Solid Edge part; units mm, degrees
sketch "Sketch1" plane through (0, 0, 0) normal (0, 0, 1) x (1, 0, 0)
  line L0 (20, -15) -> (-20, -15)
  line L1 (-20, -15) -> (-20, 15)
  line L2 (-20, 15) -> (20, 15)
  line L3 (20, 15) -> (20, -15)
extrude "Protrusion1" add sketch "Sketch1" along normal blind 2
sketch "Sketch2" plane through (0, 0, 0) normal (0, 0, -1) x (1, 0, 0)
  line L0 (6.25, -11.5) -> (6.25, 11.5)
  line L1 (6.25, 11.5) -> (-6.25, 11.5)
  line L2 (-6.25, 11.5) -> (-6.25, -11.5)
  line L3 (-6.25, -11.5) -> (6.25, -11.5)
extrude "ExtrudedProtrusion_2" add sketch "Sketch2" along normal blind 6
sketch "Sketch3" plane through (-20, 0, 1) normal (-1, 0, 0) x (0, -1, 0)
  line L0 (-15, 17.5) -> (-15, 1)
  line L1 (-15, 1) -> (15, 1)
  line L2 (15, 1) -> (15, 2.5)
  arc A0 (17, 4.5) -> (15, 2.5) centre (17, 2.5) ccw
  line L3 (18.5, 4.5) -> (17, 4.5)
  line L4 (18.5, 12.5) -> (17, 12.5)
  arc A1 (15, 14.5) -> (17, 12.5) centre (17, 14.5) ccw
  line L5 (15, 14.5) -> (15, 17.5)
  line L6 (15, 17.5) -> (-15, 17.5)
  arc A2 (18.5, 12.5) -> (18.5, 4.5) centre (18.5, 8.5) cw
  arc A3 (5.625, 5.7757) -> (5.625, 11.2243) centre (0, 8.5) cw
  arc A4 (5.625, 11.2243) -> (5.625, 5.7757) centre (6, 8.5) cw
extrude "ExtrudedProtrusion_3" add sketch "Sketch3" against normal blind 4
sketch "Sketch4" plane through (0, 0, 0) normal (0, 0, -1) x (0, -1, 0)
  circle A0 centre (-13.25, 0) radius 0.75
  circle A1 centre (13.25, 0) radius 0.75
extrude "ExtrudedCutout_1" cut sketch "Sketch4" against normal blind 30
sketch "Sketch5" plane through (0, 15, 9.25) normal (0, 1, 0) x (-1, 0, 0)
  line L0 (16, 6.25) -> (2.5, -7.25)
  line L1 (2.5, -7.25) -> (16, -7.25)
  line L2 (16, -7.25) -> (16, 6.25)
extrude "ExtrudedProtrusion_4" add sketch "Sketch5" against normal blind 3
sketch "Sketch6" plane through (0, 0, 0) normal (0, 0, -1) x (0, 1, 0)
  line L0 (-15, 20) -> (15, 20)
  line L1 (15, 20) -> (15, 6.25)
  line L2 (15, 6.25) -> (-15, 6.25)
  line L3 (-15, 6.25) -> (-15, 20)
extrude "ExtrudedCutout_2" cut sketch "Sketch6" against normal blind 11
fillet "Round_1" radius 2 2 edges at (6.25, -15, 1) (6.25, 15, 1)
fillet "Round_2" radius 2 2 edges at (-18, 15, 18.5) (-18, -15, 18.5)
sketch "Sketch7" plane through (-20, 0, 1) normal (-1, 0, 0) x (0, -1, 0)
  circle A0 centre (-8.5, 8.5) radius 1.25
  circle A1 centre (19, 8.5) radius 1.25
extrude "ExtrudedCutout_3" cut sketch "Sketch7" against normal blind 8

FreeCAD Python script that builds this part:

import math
import FreeCAD as App
import Part
import Sketcher


def edges_at(feature, points):
    """Names of the edges that pass closest to the given points."""
    edges = feature.Shape.Edges
    near = lambda p: min(range(len(edges)), key=lambda i: edges[i].distToShape(Part.Vertex(*p))[0])
    return sorted({f"Edge{near(p) + 1}" for p in points})

doc = App.newDocument("Part")
body = doc.addObject("PartDesign::Body", "Body")

# Sketch on XY plane
sketch1 = body.newObject("Sketcher::SketchObject", "Sketch")
sketch1.AttachmentSupport = (doc.getObject("XY_Plane"), [""])
sketch1.MapMode = "FlatFace"
sketch1.addGeometry([
    Part.LineSegment(App.Vector(-20, -15, 0), App.Vector(20, -15, 0)),
    Part.LineSegment(App.Vector(20, -15, 0), App.Vector(20, 15, 0)),
    Part.LineSegment(App.Vector(20, 15, 0), App.Vector(-20, 15, 0)),
    Part.LineSegment(App.Vector(-20, 15, 0), App.Vector(-20, -15, 0)),
], False)
sketch1.addConstraint([
    Sketcher.Constraint("Coincident", 0, 2, 1, 1),
    Sketcher.Constraint("Coincident", 1, 2, 2, 1),
    Sketcher.Constraint("Coincident", 2, 2, 3, 1),
    Sketcher.Constraint("Coincident", 3, 2, 0, 1),
    Sketcher.Constraint("Horizontal", 0),
    Sketcher.Constraint("Vertical", 1),
    Sketcher.Constraint("Horizontal", 2),
    Sketcher.Constraint("Vertical", 3),
    Sketcher.Constraint("Symmetric", 0, 2, 2, 2, -1, 1),
    Sketcher.Constraint("DistanceX", 0, 1, 0, 2, 40.0),
    Sketcher.Constraint("DistanceY", 1, 1, 1, 2, 30.0),
])
pad1 = body.newObject("PartDesign::Pad", "Pad")
pad1.Profile = sketch1
pad1.Length = 2

# Sketch on XY plane
sketch2 = body.newObject("Sketcher::SketchObject", "Sketch001")
sketch2.AttachmentSupport = (doc.getObject("XY_Plane"), [""])
sketch2.MapMode = "FlatFace"
sketch2.addGeometry([
    Part.LineSegment(App.Vector(-6, 12, 0), App.Vector(6, 12, 0)),
    Part.LineSegment(App.Vector(6, 12, 0), App.Vector(6, -12, 0)),
    Part.LineSegment(App.Vector(6, -12, 0), App.Vector(-6, -12, 0)),
    Part.LineSegment(App.Vector(-6, -12, 0), App.Vector(-6, 12, 0)),
], False)
sketch2.addConstraint([
    Sketcher.Constraint("Coincident", 0, 2, 1, 1),
    Sketcher.Constraint("Coincident", 1, 2, 2, 1),
    Sketcher.Constraint("Coincident", 2, 2, 3, 1),
    Sketcher.Constraint("Coincident", 3, 2, 0, 1),
    Sketcher.Constraint("Horizontal", 0),
    Sketcher.Constraint("Vertical", 1),
    Sketcher.Constraint("Horizontal", 2),
    Sketcher.Constraint("Vertical", 3),
    Sketcher.Constraint("Symmetric", 0, 2, 2, 2, -1, 1),
    Sketcher.Constraint("DistanceY", 1, 2, 1, 1, 23.0),
    Sketcher.Constraint("DistanceX", 0, 1, 0, 2, 12.5),
])
pad2 = body.newObject("PartDesign::Pad", "Pad001")
pad2.Profile = sketch2
pad2.Length = 6
pad2.Reversed = True

# Sketch on YZ plane
sketch3 = body.newObject("Sketcher::SketchObject", "Sketch002")
sketch3.AttachmentSupport = (doc.getObject("YZ_Plane"), [""])
sketch3.MapMode = "FlatFace"
sketch3.AttachmentOffset = App.Placement(App.Vector(0, 0, -20), App.Rotation())
sketch3.addGeometry([
    Part.LineSegment(App.Vector(-15, 18.5, 0), App.Vector(15, 18.5, 0)),  # 0
    Part.LineSegment(App.Vector(15, 18.5, 0), App.Vector(15, 2, 0)),  # 1
    Part.LineSegment(App.Vector(15, 2, 0), App.Vector(-15, 2, 0)),  # 2
    Part.LineSegment(App.Vector(-15, 2, 0), App.Vector(-15, 3.5, 0)),  # 3
    Part.ArcOfCircle(Part.Circle(App.Vector(-17, 3.5, 0), App.Vector(0, 0, 1), 2), math.radians(0), math.radians(90)),  # 4
    Part.LineSegment(App.Vector(-17, 5.5, 0), App.Vector(-18.5, 5.5, 0)),  # 5
    Part.ArcOfCircle(Part.Circle(App.Vector(-18.5, 9.5, 0), App.Vector(0, 0, 1), 4), math.radians(90), math.radians(270)),  # 6
    Part.LineSegment(App.Vector(-18.5, 13.5, 0), App.Vector(-17, 13.5, 0)),  # 7
    Part.ArcOfCircle(Part.Circle(App.Vector(-17, 15.5, 0), App.Vector(0, 0, 1), 2), math.radians(-90), math.radians(0)),  # 8
    Part.LineSegment(App.Vector(-15, 15.5, 0), App.Vector(-15, 18.5, 0)),  # 9
    Part.ArcOfCircle(Part.Circle(App.Vector(-6, 9.5, 0), App.Vector(0, 0, 1), 2.7), math.radians(82), math.radians(278)),  # 10
    Part.ArcOfCircle(Part.Circle(App.Vector(0, 9.5, 0), App.Vector(0, 0, 1), 6.2), math.radians(-154), math.radians(154)),  # 11
], False)
sketch3.addConstraint([
    Sketcher.Constraint("Coincident", 0, 2, 1, 1),
    Sketcher.Constraint("Coincident", 1, 2, 2, 1),
    Sketcher.Constraint("Coincident", 2, 2, 3, 1),
    Sketcher.Constraint("Tangent", 3, 2, 4, 1),
    Sketcher.Constraint("Tangent", 4, 2, 5, 1),
    Sketcher.Constraint("Tangent", 5, 2, 6, 2),
    Sketcher.Constraint("Tangent", 6, 1, 7, 1),
    Sketcher.Constraint("Tangent", 7, 2, 8, 1),
    Sketcher.Constraint("Tangent", 8, 2, 9, 1),
    Sketcher.Constraint("Coincident", 9, 2, 0, 1),
    Sketcher.Constraint("Coincident", 10, 1, 11, 2),
    Sketcher.Constraint("Coincident", 11, 1, 10, 2),
    Sketcher.Constraint("Horizontal", 0),
    Sketcher.Constraint("Vertical", 1),
    Sketcher.Constraint("Horizontal", 2),
    Sketcher.Constraint("Vertical", 3),
    Sketcher.Constraint("Horizontal", 5),
    Sketcher.Constraint("Horizontal", 7),
    Sketcher.Constraint("Vertical", 9),
    Sketcher.Constraint("Equal", 4, 8),
    Sketcher.Constraint("PointOnObject", 11, 3, -2),
    Sketcher.Constraint("Horizontal", 6, 3, 10, 3),
    Sketcher.Constraint("Horizontal", 10, 3, 11, 3),
    Sketcher.Constraint("Vertical", 4, 3, 8, 3),
    Sketcher.Constraint("Equal", 7, 3),
    Sketcher.Constraint("Radius", 4, 2.0),
    Sketcher.Constraint("Radius", 6, 4.0),
    Sketcher.Constraint("DistanceX", 0, 1, 0, 2, 30.0),
    Sketcher.Constraint("DistanceY", 9, 1, 9, 2, 3.0),
    Sketcher.Constraint("Radius", 10, 2.75),
    Sketcher.Constraint("Radius", 11, 6.25),
    Sketcher.Constraint("DistanceX", 5, 2, 5, 1, 1.5),
    Sketcher.Constraint("DistanceX", 4, 3, -1, 1, 17.0),
    Sketcher.Constraint("DistanceX", 10, 3, -1, 1, 6.0),
    Sketcher.Constraint("DistanceY", -1, 1, 1, 2, 2.0),
])
pad3 = body.newObject("PartDesign::Pad", "Pad002")
pad3.Profile = sketch3
pad3.Length = 4

# Sketch on XY plane
sketch4 = body.newObject("Sketcher::SketchObject", "Sketch003")
sketch4.AttachmentSupport = (doc.getObject("XY_Plane"), [""])
sketch4.MapMode = "FlatFace"
sketch4.addGeometry([
    Part.Circle(App.Vector(0, 13.2, 0), App.Vector(0, 0, 1), 0.8),
    Part.Circle(App.Vector(0, -13.2, 0), App.Vector(0, 0, 1), 0.8),
], False)
sketch4.addConstraint([
    Sketcher.Constraint("Equal", 0, 1),
    Sketcher.Constraint("Symmetric", 0, 3, 1, 3, -1, 1),
    Sketcher.Constraint("PointOnObject", 0, 3, -2),
    Sketcher.Constraint("Diameter", 0, 1.5),
    Sketcher.Constraint("DistanceY", 1, 3, 0, 3, 26.5),
])
pocket1 = body.newObject("PartDesign::Pocket", "Pocket")
pocket1.Profile = sketch4
pocket1.Length = 30
pocket1.Reversed = True

# Sketch on XZ plane
sketch5 = body.newObject("Sketcher::SketchObject", "Sketch004")
sketch5.AttachmentSupport = (doc.getObject("XZ_Plane"), [""])
sketch5.MapMode = "FlatFace"
sketch5.AttachmentOffset = App.Placement(App.Vector(0, 0, -15), App.Rotation())
sketch5.addGeometry([
    Part.LineSegment(App.Vector(-16, 2, 0), App.Vector(-16, 16, 0)),
    Part.LineSegment(App.Vector(-16, 16, 0), App.Vector(-2, 2, 0)),
    Part.LineSegment(App.Vector(-2, 2, 0), App.Vector(-16, 2, 0)),
], False)
sketch5.addConstraint([
    Sketcher.Constraint("Coincident", 0, 2, 1, 1),
    Sketcher.Constraint("Coincident", 1, 2, 2, 1),
    Sketcher.Constraint("Coincident", 2, 2, 0, 1),
    Sketcher.Constraint("Vertical", 0),
    Sketcher.Constraint("Horizontal", 2),
    Sketcher.Constraint("Equal", 2, 0),
    Sketcher.Constraint("DistanceX", 2, 2, 2, 1, 13.5),
    Sketcher.Constraint("DistanceX", 0, 2, -1, 1, 16.0),
    Sketcher.Constraint("DistanceY", -1, 1, 1, 2, 2.0),
])
pad4 = body.newObject("PartDesign::Pad", "Pad003")
pad4.Profile = sketch5
pad4.Length = 3

# Sketch on XY plane
sketch6 = body.newObject("Sketcher::SketchObject", "Sketch005")
sketch6.AttachmentSupport = (doc.getObject("XY_Plane"), [""])
sketch6.MapMode = "FlatFace"
sketch6.addGeometry([
    Part.LineSegment(App.Vector(20, 15, 0), App.Vector(20, -15, 0)),
    Part.LineSegment(App.Vector(20, -15, 0), App.Vector(6, -15, 0)),
    Part.LineSegment(App.Vector(6, -15, 0), App.Vector(6, 15, 0)),
    Part.LineSegment(App.Vector(6, 15, 0), App.Vector(20, 15, 0)),
], False)
sketch6.addConstraint([
    Sketcher.Constraint("Coincident", 0, 2, 1, 1),
    Sketcher.Constraint("Coincident", 1, 2, 2, 1),
    Sketcher.Constraint("Coincident", 2, 2, 3, 1),
    Sketcher.Constraint("Coincident", 3, 2, 0, 1),
    Sketcher.Constraint("Vertical", 0),
    Sketcher.Constraint("Horizontal", 1),
    Sketcher.Constraint("Vertical", 2),
    Sketcher.Constraint("Horizontal", 3),
    Sketcher.Constraint("DistanceY", 0, 2, 0, 1, 30.0),
    Sketcher.Constraint("DistanceX", -1, 1, 0, 2, 20.0),
    Sketcher.Constraint("DistanceY", 0, 2, -1, 1, 15.0),
    Sketcher.Constraint("DistanceX", 1, 2, 1, 1, 13.75),
])
pocket2 = body.newObject("PartDesign::Pocket", "Pocket001")
pocket2.Profile = sketch6
pocket2.Length = 11
pocket2.Reversed = True
doc.recompute()

fillet = body.newObject("PartDesign::Fillet", "Fillet")
fillet.Base = (pocket2, edges_at(pocket2, [(6.25, -15, 1), (6.25, 15, 1)]))
fillet.Radius = 2
doc.recompute()

fillet2 = body.newObject("PartDesign::Fillet", "Fillet001")
fillet2.Base = (fillet, edges_at(fillet, [(-18, 15, 18.5), (-18, -15, 18.5)]))
fillet2.Radius = 2

# Sketch on YZ plane
sketch7 = body.newObject("Sketcher::SketchObject", "Sketch006")
sketch7.AttachmentSupport = (doc.getObject("YZ_Plane"), [""])
sketch7.MapMode = "FlatFace"
sketch7.AttachmentOffset = App.Placement(App.Vector(0, 0, -20), App.Rotation())
sketch7.addGeometry([
    Part.Circle(App.Vector(8.5, 9.5, 0), App.Vector(0, 0, 1), 1.2),
    Part.Circle(App.Vector(-19, 9.5, 0), App.Vector(0, 0, 1), 1.2),
], False)
sketch7.addConstraint([
    Sketcher.Constraint("Equal", 0, 1),
    Sketcher.Constraint("Horizontal", 0, 3, 1, 3),
    Sketcher.Constraint("Diameter", 0, 2.5),
    Sketcher.Constraint("DistanceX", 1, 3, -1, 1, 19.0),
    Sketcher.Constraint("DistanceX", -1, 1, 0, 3, 8.5),
    Sketcher.Constraint("DistanceY", -1, 1, 0, 3, 9.5),
])
pocket3 = body.newObject("PartDesign::Pocket", "Pocket002")
pocket3.Profile = sketch7
pocket3.Length = 8
pocket3.Reversed = True

doc.recompute()
